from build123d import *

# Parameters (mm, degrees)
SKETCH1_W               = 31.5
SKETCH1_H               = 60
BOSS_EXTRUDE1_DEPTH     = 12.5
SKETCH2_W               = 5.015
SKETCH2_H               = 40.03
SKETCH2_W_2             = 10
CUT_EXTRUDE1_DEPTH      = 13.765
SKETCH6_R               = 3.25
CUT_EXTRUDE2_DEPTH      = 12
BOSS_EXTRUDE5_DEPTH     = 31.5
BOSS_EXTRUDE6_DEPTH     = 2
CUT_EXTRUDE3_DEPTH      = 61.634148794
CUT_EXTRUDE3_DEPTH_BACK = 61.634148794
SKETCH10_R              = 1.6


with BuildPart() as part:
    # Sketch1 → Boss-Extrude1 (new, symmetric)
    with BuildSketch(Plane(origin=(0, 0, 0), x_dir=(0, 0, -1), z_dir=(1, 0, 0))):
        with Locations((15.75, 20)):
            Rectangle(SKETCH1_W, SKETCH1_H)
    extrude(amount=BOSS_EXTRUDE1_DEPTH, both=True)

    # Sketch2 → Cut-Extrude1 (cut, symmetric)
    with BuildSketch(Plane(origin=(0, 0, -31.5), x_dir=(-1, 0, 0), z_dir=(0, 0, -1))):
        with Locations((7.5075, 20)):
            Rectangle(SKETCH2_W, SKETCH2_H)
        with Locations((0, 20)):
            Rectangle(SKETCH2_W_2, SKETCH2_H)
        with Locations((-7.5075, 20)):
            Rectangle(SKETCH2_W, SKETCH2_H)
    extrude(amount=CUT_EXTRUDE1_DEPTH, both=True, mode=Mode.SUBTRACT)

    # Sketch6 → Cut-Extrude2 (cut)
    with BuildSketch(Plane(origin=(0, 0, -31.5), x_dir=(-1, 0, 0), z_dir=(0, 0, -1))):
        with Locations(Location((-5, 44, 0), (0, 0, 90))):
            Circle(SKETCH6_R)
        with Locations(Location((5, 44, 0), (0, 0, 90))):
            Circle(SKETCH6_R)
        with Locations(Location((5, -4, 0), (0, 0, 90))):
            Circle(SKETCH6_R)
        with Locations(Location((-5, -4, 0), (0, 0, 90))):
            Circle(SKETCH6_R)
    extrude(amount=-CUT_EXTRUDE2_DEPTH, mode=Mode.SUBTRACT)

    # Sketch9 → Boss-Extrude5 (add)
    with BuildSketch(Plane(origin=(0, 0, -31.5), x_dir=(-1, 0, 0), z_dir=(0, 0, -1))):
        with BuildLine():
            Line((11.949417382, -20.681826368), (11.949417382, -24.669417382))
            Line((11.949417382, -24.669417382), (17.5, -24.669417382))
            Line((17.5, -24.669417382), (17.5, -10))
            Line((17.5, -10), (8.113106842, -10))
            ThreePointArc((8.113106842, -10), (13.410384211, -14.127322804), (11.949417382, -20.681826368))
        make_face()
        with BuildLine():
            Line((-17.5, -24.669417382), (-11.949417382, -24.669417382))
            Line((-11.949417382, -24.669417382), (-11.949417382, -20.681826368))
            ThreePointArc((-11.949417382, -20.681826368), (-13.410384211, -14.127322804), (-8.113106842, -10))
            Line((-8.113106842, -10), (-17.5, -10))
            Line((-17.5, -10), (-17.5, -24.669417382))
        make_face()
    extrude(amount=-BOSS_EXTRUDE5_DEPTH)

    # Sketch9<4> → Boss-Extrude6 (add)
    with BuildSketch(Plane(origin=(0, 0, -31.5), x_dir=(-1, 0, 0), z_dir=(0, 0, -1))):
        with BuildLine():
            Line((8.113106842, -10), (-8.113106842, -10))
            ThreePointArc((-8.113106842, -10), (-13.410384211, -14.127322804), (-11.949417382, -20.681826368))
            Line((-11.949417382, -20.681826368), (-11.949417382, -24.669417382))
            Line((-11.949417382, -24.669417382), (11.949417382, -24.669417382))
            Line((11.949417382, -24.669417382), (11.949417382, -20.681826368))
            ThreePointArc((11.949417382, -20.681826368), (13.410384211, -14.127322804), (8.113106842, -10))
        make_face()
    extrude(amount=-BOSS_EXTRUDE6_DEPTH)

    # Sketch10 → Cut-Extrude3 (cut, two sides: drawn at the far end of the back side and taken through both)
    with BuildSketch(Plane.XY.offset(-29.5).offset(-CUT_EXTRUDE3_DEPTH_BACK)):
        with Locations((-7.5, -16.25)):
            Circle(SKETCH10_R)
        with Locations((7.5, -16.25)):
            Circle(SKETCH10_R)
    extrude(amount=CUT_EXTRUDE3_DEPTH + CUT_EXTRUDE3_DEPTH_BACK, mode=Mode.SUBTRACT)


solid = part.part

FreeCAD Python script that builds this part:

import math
import FreeCAD as App
import Part
import Sketcher
from FreeCAD import Vector

doc = App.newDocument("Part")
body = doc.addObject("PartDesign::Body", "Body")

# Sketch on YZ plane
sketch1 = doc.addObject("Sketcher::SketchObject", "Sketch")
body.addObject(sketch1)
sketch1.AttachmentSupport = (doc.YZ_Plane, [""])
sketch1.MapMode = "FlatFace"
sketch1.addGeometry([
    Part.LineSegment(Vector(50, 0, 0), Vector(-10, 0, 0)),
    Part.LineSegment(Vector(-10, 0, 0), Vector(-10, -32, 0)),
    Part.LineSegment(Vector(-10, -32, 0), Vector(50, -32, 0)),
    Part.LineSegment(Vector(50, -32, 0), Vector(50, 0, 0)),
], False)
sketch1.addConstraint([
    Sketcher.Constraint("Coincident", 0, 2, 1, 1),
    Sketcher.Constraint("Coincident", 1, 2, 2, 1),
    Sketcher.Constraint("Coincident", 2, 2, 3, 1),
    Sketcher.Constraint("Coincident", 3, 2, 0, 1),
    Sketcher.Constraint("Horizontal", 0),
    Sketcher.Constraint("Vertical", 1),
    Sketcher.Constraint("Horizontal", 2),
    Sketcher.Constraint("Vertical", 3),
    Sketcher.Constraint("PointOnObject", 0, 2, -1),
    Sketcher.Constraint("DistanceX", 0, 2, 0, 1, 60.0),
    Sketcher.Constraint("DistanceY", 1, 2, 1, 1, 31.5),
    Sketcher.Constraint("DistanceX", 0, 2, -1, 1, 10.0),
])
pad1 = doc.addObject("PartDesign::Pad", "Pad")
body.addObject(pad1)
pad1.Profile = sketch1
pad1.Length = 25
pad1.Midplane = True

# Sketch on XY plane
sketch2 = doc.addObject("Sketcher::SketchObject", "Sketch001")
body.addObject(sketch2)
sketch2.AttachmentSupport = (doc.XY_Plane, [""])
sketch2.MapMode = "FlatFace"
sketch2.AttachmentOffset = App.Placement(Vector(0, 0, -31.5), App.Rotation())
sketch2.addGeometry([
    Part.LineSegment(Vector(-10, 0, 0), Vector(-10, 40, 0)),
    Part.LineSegment(Vector(-10, 40, 0), Vector(10, 40, 0)),
    Part.LineSegment(Vector(10, 40, 0), Vector(10, 0, 0)),
    Part.LineSegment(Vector(10, 0, 0), Vector(-10, 0, 0)),
], False)
sketch2.addConstraint([
    Sketcher.Constraint("Coincident", 0, 2, 1, 1),
    Sketcher.Constraint("Coincident", 1, 2, 2, 1),
    Sketcher.Constraint("Coincident", 2, 2, 3, 1),
    Sketcher.Constraint("Coincident", 3, 2, 0, 1),
    Sketcher.Constraint("Vertical", 0),
    Sketcher.Constraint("Horizontal", 1),
    Sketcher.Constraint("Vertical", 2),
    Sketcher.Constraint("Horizontal", 3),
    Sketcher.Constraint("DistanceX", 1, 1, 1, 2, 20.03),
    Sketcher.Constraint("DistanceY", 0, 1, 0, 2, 40.03),
    Sketcher.Constraint("DistanceX", 0, 2, -1, 1, 10.015),
    Sketcher.Constraint("DistanceY", -1, 1, 0, 2, 40.015),
])
pocket1 = doc.addObject("PartDesign::Pocket", "Pocket")
body.addObject(pocket1)
pocket1.Profile = sketch2
pocket1.Length = 27.53
pocket1.Midplane = True

# Sketch on XY plane
sketch3 = doc.addObject("Sketcher::SketchObject", "Sketch002")
body.addObject(sketch3)
sketch3.AttachmentSupport = (doc.XY_Plane, [""])
sketch3.MapMode = "FlatFace"
sketch3.AttachmentOffset = App.Placement(Vector(0, 0, -31.5), App.Rotation())
sketch3.addGeometry([
    Part.Circle(Vector(5, 44, 0), Vector(0, 0, 1), 3.2),
    Part.Circle(Vector(-5, 44, 0), Vector(0, 0, 1), 3.2),
    Part.Circle(Vector(-5, -4, 0), Vector(0, 0, 1), 3.2),
    Part.Circle(Vector(5, -4, 0), Vector(0, 0, 1), 3.2),
], False)
sketch3.addConstraint([
    Sketcher.Constraint("Equal", 0, 1),
    Sketcher.Constraint("Equal", 1, 2),
    Sketcher.Constraint("Equal", 2, 3),
    Sketcher.Constraint("Symmetric", 0, 3, 1, 3, -2),
    Sketcher.Constraint("Symmetric", 2, 3, 3, 3, -2),
    Sketcher.Constraint("Vertical", 1, 3, 2, 3),
    Sketcher.Constraint("Diameter", 0, 6.5),
    Sketcher.Constraint("DistanceX", -1, 1, 0, 3, 5.0),
    Sketcher.Constraint("DistanceY", -1, 1, 0, 3, 44.0),
    Sketcher.Constraint("DistanceY", 2, 3, -1, 1, 4.0),
])
pocket2 = doc.addObject("PartDesign::Pocket", "Pocket001")
body.addObject(pocket2)
pocket2.Profile = sketch3
pocket2.Length = 12
pocket2.Reversed = True

# Sketch on XY plane
sketch4 = doc.addObject("Sketcher::SketchObject", "Sketch003")
body.addObject(sketch4)
sketch4.AttachmentSupport = (doc.XY_Plane, [""])
sketch4.MapMode = "FlatFace"
sketch4.AttachmentOffset = App.Placement(Vector(0, 0, -31.5), App.Rotation())
sketch4.addGeometry([
    Part.LineSegment(Vector(-11.9, -20.7, 0), Vector(-11.9, -24.7, 0)),  # 0
    Part.LineSegment(Vector(-11.9, -24.7, 0), Vector(-17.5, -24.7, 0)),  # 1
    Part.LineSegment(Vector(-17.5, -24.7, 0), Vector(-17.5, -10, 0)),  # 2
    Part.LineSegment(Vector(-17.5, -10, 0), Vector(-8.1, -10, 0)),  # 3
    Part.ArcOfCircle(Part.Circle(Vector(-7.5, -16.2, 0), Vector(0, 0, 1), 6.3), math.radians(96), math.radians(225)),  # 4
    Part.LineSegment(Vector(17.5, -24.7, 0), Vector(11.9, -24.7, 0)),  # 5
    Part.LineSegment(Vector(11.9, -24.7, 0), Vector(11.9, -20.7, 0)),  # 6
    Part.ArcOfCircle(Part.Circle(Vector(7.5, -16.2, 0), Vector(0, 0, 1), 6.3), math.radians(-45), math.radians(84)),  # 7
    Part.LineSegment(Vector(8.1, -10, 0), Vector(17.5, -10, 0)),  # 8
    Part.LineSegment(Vector(17.5, -10, 0), Vector(17.5, -24.7, 0)),  # 9
], False)
sketch4.addConstraint([
    Sketcher.Constraint("Coincident", 0, 2, 1, 1),
    Sketcher.Constraint("Coincident", 1, 2, 2, 1),
    Sketcher.Constraint("Coincident", 2, 2, 3, 1),
    Sketcher.Constraint("Coincident", 3, 2, 4, 1),
    Sketcher.Constraint("Coincident", 4, 2, 0, 1),
    Sketcher.Constraint("Coincident", 5, 2, 6, 1),
    Sketcher.Constraint("Coincident", 6, 2, 7, 1),
    Sketcher.Constraint("Coincident", 7, 2, 8, 1),
    Sketcher.Constraint("Coincident", 8, 2, 9, 1),
    Sketcher.Constraint("Coincident", 9, 2, 5, 1),
    Sketcher.Constraint("Vertical", 0),
    Sketcher.Constraint("Horizontal", 1),
    Sketcher.Constraint("Vertical", 2),
    Sketcher.Constraint("Horizontal", 3),
    Sketcher.Constraint("Horizontal", 5),
    Sketcher.Constraint("Vertical", 6),
    Sketcher.Constraint("Horizontal", 8),
    Sketcher.Constraint("Vertical", 9),
    Sketcher.Constraint("Equal", 4, 7),
    Sketcher.Constraint("Symmetric", 4, 3, 7, 3, -2),
    Sketcher.Constraint("Symmetric", 0, 2, 5, 2, -2),
    Sketcher.Constraint("Symmetric", 2, 2, 8, 2, -2),
    Sketcher.Constraint("Radius", 4, 6.28),
    Sketcher.Constraint("DistanceY", 2, 2, -1, 1, 10.0),
    Sketcher.Constraint("DistanceX", 4, 3, 7, 3, 15.0),
    Sketcher.Constraint("DistanceX", 1, 2, 4, 3, 10.0),
    Sketcher.Constraint("DistanceY", 4, 3, -1, 1, 16.25),
    Sketcher.Constraint("DistanceY", 0, 2, 0, 1, 3.987591),
    Sketcher.Constraint("DistanceX", 1, 2, 1, 1, 5.550583),
])
pad2 = doc.addObject("PartDesign::Pad", "Pad001")
body.addObject(pad2)
pad2.Profile = sketch4
pad2.Length = 31.5

# Sketch on XY plane
sketch5 = doc.addObject("Sketcher::SketchObject", "Sketch004")
body.addObject(sketch5)
sketch5.AttachmentSupport = (doc.XY_Plane, [""])
sketch5.MapMode = "FlatFace"
sketch5.AttachmentOffset = App.Placement(Vector(0, 0, -31.5), App.Rotation())
sketch5.addGeometry([
    Part.LineSegment(Vector(-8.1, -10, 0), Vector(8.1, -10, 0)),  # 0
    Part.ArcOfCircle(Part.Circle(Vector(7.5, -16.2, 0), Vector(0, 0, 1), 6.3), math.radians(-45), math.radians(84)),  # 1
    Part.LineSegment(Vector(11.9, -20.7, 0), Vector(11.9, -24.7, 0)),  # 2
    Part.LineSegment(Vector(11.9, -24.7, 0), Vector(-11.9, -24.7, 0)),  # 3
    Part.LineSegment(Vector(-11.9, -24.7, 0), Vector(-11.9, -20.7, 0)),  # 4
    Part.ArcOfCircle(Part.Circle(Vector(-7.5, -16.2, 0), Vector(0, 0, 1), 6.3), math.radians(96), math.radians(225)),  # 5
], False)
sketch5.addConstraint([
    Sketcher.Constraint("Coincident", 0, 2, 1, 2),
    Sketcher.Constraint("Coincident", 1, 1, 2, 1),
    Sketcher.Constraint("Coincident", 2, 2, 3, 1),
    Sketcher.Constraint("Coincident", 3, 2, 4, 1),
    Sketcher.Constraint("Coincident", 4, 2, 5, 2),
    Sketcher.Constraint("Coincident", 5, 1, 0, 1),
    Sketcher.Constraint("Horizontal", 0),
    Sketcher.Constraint("Vertical", 2),
    Sketcher.Constraint("Horizontal", 3),
    Sketcher.Constraint("Vertical", 4),
    Sketcher.Constraint("Equal", 1, 5),
    Sketcher.Constraint("Symmetric", 1, 3, 5, 3, -2),
    Sketcher.Constraint("Horizontal", 1, 1, 4, 2),
    Sketcher.Constraint("Radius", 1, 6.28),
    Sketcher.Constraint("DistanceY", 0, 2, -1, 1, 10.0),
    Sketcher.Constraint("DistanceX", 5, 3, 1, 3, 15.0),
    Sketcher.Constraint("DistanceY", 1, 3, -1, 1, 16.25),
    Sketcher.Constraint("DistanceY", 2, 2, 2, 1, 3.987591),
    Sketcher.Constraint("DistanceX", 3, 2, 3, 1, 23.898835),
])
pad3 = doc.addObject("PartDesign::Pad", "Pad002")
body.addObject(pad3)
pad3.Profile = sketch5
pad3.Length = 2

# Sketch on XY plane
sketch6 = doc.addObject("Sketcher::SketchObject", "Sketch005")
body.addObject(sketch6)
sketch6.AttachmentSupport = (doc.XY_Plane, [""])
sketch6.MapMode = "FlatFace"
sketch6.AttachmentOffset = App.Placement(Vector(0, 0, -29.5), App.Rotation())
sketch6.addGeometry([
    Part.Circle(Vector(-7.5, -16.2, 0), Vector(0, 0, 1), 1.6),
    Part.Circle(Vector(7.5, -16.2, 0), Vector(0, 0, 1), 1.6),
], False)
sketch6.addConstraint([
    Sketcher.Constraint("Equal", 0, 1),
    Sketcher.Constraint("Symmetric", 0, 3, 1, 3, -2),
    Sketcher.Constraint("Diameter", 0, 3.2),
    Sketcher.Constraint("DistanceX", 0, 3, 1, 3, 15.0),
    Sketcher.Constraint("DistanceY", 0, 3, -1, 1, 16.25),
])
pocket3 = doc.addObject("PartDesign::Pocket", "Pocket002")
body.addObject(pocket3)
pocket3.Profile = sketch6
pocket3.Type = "ThroughAll"
pocket3.Midplane = True

doc.recompute()
